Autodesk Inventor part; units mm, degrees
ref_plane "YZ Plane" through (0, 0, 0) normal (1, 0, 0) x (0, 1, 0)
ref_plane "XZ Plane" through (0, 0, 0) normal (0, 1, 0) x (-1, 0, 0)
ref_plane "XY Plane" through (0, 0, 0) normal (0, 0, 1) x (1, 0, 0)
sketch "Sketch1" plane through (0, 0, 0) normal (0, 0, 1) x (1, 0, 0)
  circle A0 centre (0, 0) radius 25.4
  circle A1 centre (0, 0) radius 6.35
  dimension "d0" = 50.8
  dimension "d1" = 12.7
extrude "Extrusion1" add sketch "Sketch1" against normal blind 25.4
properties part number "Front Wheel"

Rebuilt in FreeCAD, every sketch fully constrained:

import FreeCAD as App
import Part
import Sketcher
from FreeCAD import Vector
Q = App.Units.Quantity

doc = App.newDocument("Part")
params = doc.addObject("Spreadsheet::Sheet", "Params")
for row, (alias, value) in enumerate([
    ("sketch1_diameter", "2 in"),
    ("sketch1_diameter2", "0.5 in"),
    ("pad1_length", "1 in"),
], start=1):
    params.set(f"A{row}", alias)
    params.set(f"B{row}", "=" + value)
    params.setAlias(f"B{row}", alias)

body = doc.addObject("PartDesign::Body", "Body")

# Sketch on XY plane
sketch1 = doc.addObject("Sketcher::SketchObject", "Sketch")
body.addObject(sketch1)
sketch1.AttachmentSupport = (doc.XY_Plane, [""])
sketch1.MapMode = "FlatFace"
sketch1.addGeometry([
    Part.Circle(Vector(0, 0, 0), Vector(0, 0, 1), 25),
    Part.Circle(Vector(0, 0, 0), Vector(0, 0, 1), 6),
], False)
sketch1.addConstraint([
    Sketcher.Constraint("Coincident", 0, 3, -1, 1),
    Sketcher.Constraint("Coincident", 1, 3, -1, 1),
    Sketcher.Constraint("Diameter", 0, Q("2 in")),
    Sketcher.Constraint("Diameter", 1, Q("0.5 in")),
])
sketch1.setExpression("Constraints[2]", "Params.sketch1_diameter")
sketch1.setExpression("Constraints[3]", "Params.sketch1_diameter2")
pad1 = doc.addObject("PartDesign::Pad", "Pad")
body.addObject(pad1)
pad1.Profile = sketch1
pad1.setExpression("Length", "Params.pad1_length")
pad1.Reversed = True

doc.recompute()
